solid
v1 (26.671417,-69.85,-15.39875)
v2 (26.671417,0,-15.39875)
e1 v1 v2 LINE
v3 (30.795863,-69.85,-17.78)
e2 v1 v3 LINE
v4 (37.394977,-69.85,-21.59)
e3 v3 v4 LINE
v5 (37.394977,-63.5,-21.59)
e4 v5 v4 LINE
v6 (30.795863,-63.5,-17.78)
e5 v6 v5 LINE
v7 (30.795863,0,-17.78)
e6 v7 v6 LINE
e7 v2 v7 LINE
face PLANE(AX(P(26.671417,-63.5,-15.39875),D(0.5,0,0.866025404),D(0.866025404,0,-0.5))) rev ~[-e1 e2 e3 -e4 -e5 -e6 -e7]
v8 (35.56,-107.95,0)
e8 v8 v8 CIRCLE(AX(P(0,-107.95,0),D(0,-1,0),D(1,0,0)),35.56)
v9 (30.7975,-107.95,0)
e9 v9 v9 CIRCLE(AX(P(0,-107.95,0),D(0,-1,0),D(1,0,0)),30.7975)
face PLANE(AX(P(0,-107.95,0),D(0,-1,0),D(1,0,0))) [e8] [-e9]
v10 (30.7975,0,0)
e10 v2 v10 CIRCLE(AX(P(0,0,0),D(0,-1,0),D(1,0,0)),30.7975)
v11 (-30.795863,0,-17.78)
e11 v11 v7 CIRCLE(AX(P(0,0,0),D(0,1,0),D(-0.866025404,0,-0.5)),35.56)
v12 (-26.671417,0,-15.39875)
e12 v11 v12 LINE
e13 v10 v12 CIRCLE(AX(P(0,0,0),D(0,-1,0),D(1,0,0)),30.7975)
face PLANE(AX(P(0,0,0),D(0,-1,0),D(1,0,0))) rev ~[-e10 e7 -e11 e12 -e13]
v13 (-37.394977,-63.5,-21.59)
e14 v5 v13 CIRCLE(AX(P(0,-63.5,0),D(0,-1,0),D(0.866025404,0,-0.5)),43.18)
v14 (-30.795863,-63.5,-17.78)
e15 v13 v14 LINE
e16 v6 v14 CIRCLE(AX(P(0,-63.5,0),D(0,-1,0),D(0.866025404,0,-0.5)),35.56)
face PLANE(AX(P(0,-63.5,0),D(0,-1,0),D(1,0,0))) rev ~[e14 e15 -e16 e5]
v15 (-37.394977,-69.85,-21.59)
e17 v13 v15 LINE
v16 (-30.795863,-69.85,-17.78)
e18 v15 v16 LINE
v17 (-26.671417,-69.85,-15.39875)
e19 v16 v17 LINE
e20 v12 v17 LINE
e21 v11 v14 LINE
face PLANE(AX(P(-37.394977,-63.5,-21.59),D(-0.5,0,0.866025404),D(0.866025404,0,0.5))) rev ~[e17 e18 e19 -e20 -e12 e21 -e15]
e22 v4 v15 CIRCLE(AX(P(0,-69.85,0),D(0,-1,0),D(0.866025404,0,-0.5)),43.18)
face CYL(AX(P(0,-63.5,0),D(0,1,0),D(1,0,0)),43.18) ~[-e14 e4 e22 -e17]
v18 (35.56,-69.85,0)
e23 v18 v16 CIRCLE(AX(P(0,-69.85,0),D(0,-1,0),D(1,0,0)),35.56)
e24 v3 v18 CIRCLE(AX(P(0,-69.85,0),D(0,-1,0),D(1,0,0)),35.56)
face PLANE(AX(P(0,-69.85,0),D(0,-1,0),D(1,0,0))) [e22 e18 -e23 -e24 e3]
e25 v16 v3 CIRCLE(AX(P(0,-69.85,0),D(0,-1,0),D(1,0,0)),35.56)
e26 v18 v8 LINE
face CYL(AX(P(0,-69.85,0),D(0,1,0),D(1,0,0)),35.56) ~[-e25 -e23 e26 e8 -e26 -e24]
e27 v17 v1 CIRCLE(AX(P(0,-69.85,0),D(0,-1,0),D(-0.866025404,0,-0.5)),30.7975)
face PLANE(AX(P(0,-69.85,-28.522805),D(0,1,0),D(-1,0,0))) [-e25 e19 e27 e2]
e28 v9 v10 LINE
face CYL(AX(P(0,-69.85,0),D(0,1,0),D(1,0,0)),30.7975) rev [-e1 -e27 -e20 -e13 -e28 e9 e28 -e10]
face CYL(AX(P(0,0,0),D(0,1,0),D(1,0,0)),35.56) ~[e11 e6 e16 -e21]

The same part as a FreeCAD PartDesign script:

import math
import FreeCAD as App
import Part
import Sketcher

V = App.Vector
Q = App.Units.Quantity


def add_polygon(sketch, points):
    """Adds a closed chain of lines whose ends are joined by coincident constraints."""
    first, n = sketch.GeometryCount, len(points)
    for a, b in zip(points, points[1:] + points[:1]):
        sketch.addGeometry(Part.LineSegment(App.Vector(*a, 0), App.Vector(*b, 0)), False)
    for i in range(n):
        sketch.addConstraint(Sketcher.Constraint("Coincident", first + i, 2, first + (i + 1) % n, 1))

doc = App.newDocument("Part")
params = doc.addObject("Spreadsheet::Sheet", "Params")
for row, (alias, value) in enumerate([
    ("sketch1_diameter", "2.8 in"),
    ("sketch1_diameter2", "2.425 in"),
    ("pad1_length", "2.5 in"),
    ("sketch2_diameter", "3.4 in"),
    ("sketch2_diameter2", "2.425 in"),
    ("pad2_length", "0.25 in"),
    ("sketch3_diameter", "2.8 in"),
    ("sketch3_diameter2", "2.425 in"),
    ("pad3_length", "1.5 in"),
    ("sketch4_length", "0.1875 in"),
    ("pocket1_length", "2.5 in"),
    ("sketch5_radius", "1.7 in"),
    ("pocket2_length", "0.25 in"),
], start=1):
    params.set(f"A{row}", alias)
    params.set(f"B{row}", "=" + value)
    params.setAlias(f"B{row}", alias)

body = doc.addObject("PartDesign::Body", "Body")

sketch1 = body.newObject("Sketcher::SketchObject", "Sketch")
sketch1.AttachmentSupport = (doc.getObject("XZ_Plane"), [""])
sketch1.MapMode = "FlatFace"
sketch1.addGeometry([
    Part.Circle(V(0, 0, 0), V(0, 0, 1), 36),
    Part.Circle(V(0, 0, 0), V(0, 0, 1), 31),
], False)
sketch1.addConstraint([
    Sketcher.Constraint("Coincident", 0, 3, -1, 1),
    Sketcher.Constraint("Coincident", 1, 3, -1, 1),
    Sketcher.Constraint("Diameter", 0, Q("2.8 in")),
    Sketcher.Constraint("Diameter", 1, Q("2.425 in")),
])
sketch1.setExpression("Constraints[2]", "Params.sketch1_diameter")
sketch1.setExpression("Constraints[3]", "Params.sketch1_diameter2")
pad1 = body.newObject("PartDesign::Pad", "Pad")
pad1.Profile = sketch1
pad1.setExpression("Length", "Params.pad1_length")

sketch2 = body.newObject("Sketcher::SketchObject", "Sketch001")
sketch2.AttachmentSupport = (doc.getObject("XZ_Plane"), [""])
sketch2.MapMode = "FlatFace"
sketch2.AttachmentOffset = App.Placement(V(0, 0, 2.5 * 25.4), App.Rotation())
sketch2.addGeometry([
    Part.Circle(V(0, 0, 0), V(0, 0, 1), 43),
    Part.Circle(V(0, 0, 0), V(0, 0, 1), 31),
], False)
sketch2.addConstraint([
    Sketcher.Constraint("Coincident", 0, 3, -1, 1),
    Sketcher.Constraint("Coincident", 1, 3, -1, 1),
    Sketcher.Constraint("Diameter", 0, Q("3.4 in")),
    Sketcher.Constraint("Diameter", 1, Q("2.425 in")),
])
sketch2.setExpression("Constraints[2]", "Params.sketch2_diameter")
sketch2.setExpression("Constraints[3]", "Params.sketch2_diameter2")
pad2 = body.newObject("PartDesign::Pad", "Pad001")
pad2.Profile = sketch2
pad2.setExpression("Length", "Params.pad2_length")

sketch3 = body.newObject("Sketcher::SketchObject", "Sketch002")
sketch3.AttachmentSupport = (doc.getObject("XZ_Plane"), [""])
sketch3.MapMode = "FlatFace"
sketch3.AttachmentOffset = App.Placement(V(0, 0, 2.75 * 25.4), App.Rotation())
sketch3.addGeometry([
    Part.Circle(V(0, 0, 0), V(0, 0, 1), 36),
    Part.Circle(V(0, 0, 0), V(0, 0, 1), 31),
], False)
sketch3.addConstraint([
    Sketcher.Constraint("Coincident", 0, 3, -1, 1),
    Sketcher.Constraint("Coincident", 1, 3, -1, 1),
    Sketcher.Constraint("Diameter", 0, Q("2.8 in")),
    Sketcher.Constraint("Diameter", 1, Q("2.425 in")),
])
sketch3.setExpression("Constraints[2]", "Params.sketch3_diameter")
sketch3.setExpression("Constraints[3]", "Params.sketch3_diameter2")
pad3 = body.newObject("PartDesign::Pad", "Pad002")
pad3.Profile = sketch3
pad3.setExpression("Length", "Params.pad3_length")

sketch4 = body.newObject("Sketcher::SketchObject", "Sketch003")
sketch4.AttachmentSupport = (doc.getObject("XZ_Plane"), [""])
sketch4.MapMode = "FlatFace"
add_polygon(sketch4, [(-26.7, -15.4), (0, 0), (26.7, -15.4), (30.8, -17.8), (66.8, -38.6), (-66.8, -38.6), (-30.8, -17.8)])
sketch4.addConstraint([
    Sketcher.Constraint("Horizontal", 4),
    Sketcher.Constraint("Coincident", 0, 2, -1, 1),
    Sketcher.Constraint("Symmetric", 2, 2, 5, 2, -2),
    Sketcher.Constraint("Symmetric", 1, 2, 6, 2, -2),
    Sketcher.Constraint("Parallel", 1, 2),
    Sketcher.Constraint("Parallel", 2, 3),
    Sketcher.Constraint("Parallel", 0, 5),
    Sketcher.Constraint("Angle", 0, Q("30 deg")),
    Sketcher.Constraint("DistanceY", 2, 2, -1, 1, Q("0.7 in")),
    Sketcher.Constraint("Distance", 2, Q("0.1875 in")),
    Sketcher.Constraint("DistanceX", 4, 2, 4, 1, 133.634153),
])
sketch4.setExpression("Constraints[16]", "Params.sketch4_length")
pocket1 = body.newObject("PartDesign::Pocket", "Pocket")
pocket1.Profile = sketch4
pocket1.setExpression("Length", "Params.pocket1_length")
pocket1.Reversed = True

sketch5 = body.newObject("Sketcher::SketchObject", "Sketch004")
sketch5.AttachmentSupport = (doc.getObject("XZ_Plane"), [""])
sketch5.MapMode = "FlatFace"
sketch5.AttachmentOffset = App.Placement(V(0, 0, 2.5 * 25.4), App.Rotation())
sketch5.addGeometry([
    Part.ArcOfCircle(Part.Circle(V(0, 0, 0), V(0, 0, 1), 31), math.radians(-150), math.radians(-30)),
    Part.LineSegment(V(27, -15, 0), V(37, -22, 0)),
    Part.ArcOfCircle(Part.Circle(V(0, 0, 0), V(0, 0, 1), 43), math.radians(-150), math.radians(-30)),
    Part.LineSegment(V(-37, -22, 0), V(-27, -15, 0)),
], False)
sketch5.addConstraint([
    Sketcher.Constraint("Coincident", 0, 2, 1, 1),
    Sketcher.Constraint("Coincident", 1, 2, 2, 2),
    Sketcher.Constraint("Coincident", 2, 1, 3, 1),
    Sketcher.Constraint("Coincident", 3, 2, 0, 1),
    Sketcher.Constraint("Coincident", 0, 3, -1, 1),
    Sketcher.Constraint("Coincident", 2, 3, -1, 1),
    Sketcher.Constraint("Horizontal", 1, 2, 2, 1),
    Sketcher.Constraint("Horizontal", 0, 2, 3, 2),
    Sketcher.Constraint("Radius", 2, Q("1.7 in")),
    Sketcher.Constraint("Angle", 1, Q("-30 deg")),
    Sketcher.Constraint("Radius", 0, Q("1.2125 in")),
    Sketcher.Constraint("DistanceY", 1, 2, -1, 1, Q("0.85 in")),
])
sketch5.setExpression("Constraints[8]", "Params.sketch5_radius")
pocket2 = body.newObject("PartDesign::Pocket", "Pocket001")
pocket2.Profile = sketch5
pocket2.setExpression("Length", "Params.pocket2_length")
pocket2.Reversed = True

doc.recompute()
